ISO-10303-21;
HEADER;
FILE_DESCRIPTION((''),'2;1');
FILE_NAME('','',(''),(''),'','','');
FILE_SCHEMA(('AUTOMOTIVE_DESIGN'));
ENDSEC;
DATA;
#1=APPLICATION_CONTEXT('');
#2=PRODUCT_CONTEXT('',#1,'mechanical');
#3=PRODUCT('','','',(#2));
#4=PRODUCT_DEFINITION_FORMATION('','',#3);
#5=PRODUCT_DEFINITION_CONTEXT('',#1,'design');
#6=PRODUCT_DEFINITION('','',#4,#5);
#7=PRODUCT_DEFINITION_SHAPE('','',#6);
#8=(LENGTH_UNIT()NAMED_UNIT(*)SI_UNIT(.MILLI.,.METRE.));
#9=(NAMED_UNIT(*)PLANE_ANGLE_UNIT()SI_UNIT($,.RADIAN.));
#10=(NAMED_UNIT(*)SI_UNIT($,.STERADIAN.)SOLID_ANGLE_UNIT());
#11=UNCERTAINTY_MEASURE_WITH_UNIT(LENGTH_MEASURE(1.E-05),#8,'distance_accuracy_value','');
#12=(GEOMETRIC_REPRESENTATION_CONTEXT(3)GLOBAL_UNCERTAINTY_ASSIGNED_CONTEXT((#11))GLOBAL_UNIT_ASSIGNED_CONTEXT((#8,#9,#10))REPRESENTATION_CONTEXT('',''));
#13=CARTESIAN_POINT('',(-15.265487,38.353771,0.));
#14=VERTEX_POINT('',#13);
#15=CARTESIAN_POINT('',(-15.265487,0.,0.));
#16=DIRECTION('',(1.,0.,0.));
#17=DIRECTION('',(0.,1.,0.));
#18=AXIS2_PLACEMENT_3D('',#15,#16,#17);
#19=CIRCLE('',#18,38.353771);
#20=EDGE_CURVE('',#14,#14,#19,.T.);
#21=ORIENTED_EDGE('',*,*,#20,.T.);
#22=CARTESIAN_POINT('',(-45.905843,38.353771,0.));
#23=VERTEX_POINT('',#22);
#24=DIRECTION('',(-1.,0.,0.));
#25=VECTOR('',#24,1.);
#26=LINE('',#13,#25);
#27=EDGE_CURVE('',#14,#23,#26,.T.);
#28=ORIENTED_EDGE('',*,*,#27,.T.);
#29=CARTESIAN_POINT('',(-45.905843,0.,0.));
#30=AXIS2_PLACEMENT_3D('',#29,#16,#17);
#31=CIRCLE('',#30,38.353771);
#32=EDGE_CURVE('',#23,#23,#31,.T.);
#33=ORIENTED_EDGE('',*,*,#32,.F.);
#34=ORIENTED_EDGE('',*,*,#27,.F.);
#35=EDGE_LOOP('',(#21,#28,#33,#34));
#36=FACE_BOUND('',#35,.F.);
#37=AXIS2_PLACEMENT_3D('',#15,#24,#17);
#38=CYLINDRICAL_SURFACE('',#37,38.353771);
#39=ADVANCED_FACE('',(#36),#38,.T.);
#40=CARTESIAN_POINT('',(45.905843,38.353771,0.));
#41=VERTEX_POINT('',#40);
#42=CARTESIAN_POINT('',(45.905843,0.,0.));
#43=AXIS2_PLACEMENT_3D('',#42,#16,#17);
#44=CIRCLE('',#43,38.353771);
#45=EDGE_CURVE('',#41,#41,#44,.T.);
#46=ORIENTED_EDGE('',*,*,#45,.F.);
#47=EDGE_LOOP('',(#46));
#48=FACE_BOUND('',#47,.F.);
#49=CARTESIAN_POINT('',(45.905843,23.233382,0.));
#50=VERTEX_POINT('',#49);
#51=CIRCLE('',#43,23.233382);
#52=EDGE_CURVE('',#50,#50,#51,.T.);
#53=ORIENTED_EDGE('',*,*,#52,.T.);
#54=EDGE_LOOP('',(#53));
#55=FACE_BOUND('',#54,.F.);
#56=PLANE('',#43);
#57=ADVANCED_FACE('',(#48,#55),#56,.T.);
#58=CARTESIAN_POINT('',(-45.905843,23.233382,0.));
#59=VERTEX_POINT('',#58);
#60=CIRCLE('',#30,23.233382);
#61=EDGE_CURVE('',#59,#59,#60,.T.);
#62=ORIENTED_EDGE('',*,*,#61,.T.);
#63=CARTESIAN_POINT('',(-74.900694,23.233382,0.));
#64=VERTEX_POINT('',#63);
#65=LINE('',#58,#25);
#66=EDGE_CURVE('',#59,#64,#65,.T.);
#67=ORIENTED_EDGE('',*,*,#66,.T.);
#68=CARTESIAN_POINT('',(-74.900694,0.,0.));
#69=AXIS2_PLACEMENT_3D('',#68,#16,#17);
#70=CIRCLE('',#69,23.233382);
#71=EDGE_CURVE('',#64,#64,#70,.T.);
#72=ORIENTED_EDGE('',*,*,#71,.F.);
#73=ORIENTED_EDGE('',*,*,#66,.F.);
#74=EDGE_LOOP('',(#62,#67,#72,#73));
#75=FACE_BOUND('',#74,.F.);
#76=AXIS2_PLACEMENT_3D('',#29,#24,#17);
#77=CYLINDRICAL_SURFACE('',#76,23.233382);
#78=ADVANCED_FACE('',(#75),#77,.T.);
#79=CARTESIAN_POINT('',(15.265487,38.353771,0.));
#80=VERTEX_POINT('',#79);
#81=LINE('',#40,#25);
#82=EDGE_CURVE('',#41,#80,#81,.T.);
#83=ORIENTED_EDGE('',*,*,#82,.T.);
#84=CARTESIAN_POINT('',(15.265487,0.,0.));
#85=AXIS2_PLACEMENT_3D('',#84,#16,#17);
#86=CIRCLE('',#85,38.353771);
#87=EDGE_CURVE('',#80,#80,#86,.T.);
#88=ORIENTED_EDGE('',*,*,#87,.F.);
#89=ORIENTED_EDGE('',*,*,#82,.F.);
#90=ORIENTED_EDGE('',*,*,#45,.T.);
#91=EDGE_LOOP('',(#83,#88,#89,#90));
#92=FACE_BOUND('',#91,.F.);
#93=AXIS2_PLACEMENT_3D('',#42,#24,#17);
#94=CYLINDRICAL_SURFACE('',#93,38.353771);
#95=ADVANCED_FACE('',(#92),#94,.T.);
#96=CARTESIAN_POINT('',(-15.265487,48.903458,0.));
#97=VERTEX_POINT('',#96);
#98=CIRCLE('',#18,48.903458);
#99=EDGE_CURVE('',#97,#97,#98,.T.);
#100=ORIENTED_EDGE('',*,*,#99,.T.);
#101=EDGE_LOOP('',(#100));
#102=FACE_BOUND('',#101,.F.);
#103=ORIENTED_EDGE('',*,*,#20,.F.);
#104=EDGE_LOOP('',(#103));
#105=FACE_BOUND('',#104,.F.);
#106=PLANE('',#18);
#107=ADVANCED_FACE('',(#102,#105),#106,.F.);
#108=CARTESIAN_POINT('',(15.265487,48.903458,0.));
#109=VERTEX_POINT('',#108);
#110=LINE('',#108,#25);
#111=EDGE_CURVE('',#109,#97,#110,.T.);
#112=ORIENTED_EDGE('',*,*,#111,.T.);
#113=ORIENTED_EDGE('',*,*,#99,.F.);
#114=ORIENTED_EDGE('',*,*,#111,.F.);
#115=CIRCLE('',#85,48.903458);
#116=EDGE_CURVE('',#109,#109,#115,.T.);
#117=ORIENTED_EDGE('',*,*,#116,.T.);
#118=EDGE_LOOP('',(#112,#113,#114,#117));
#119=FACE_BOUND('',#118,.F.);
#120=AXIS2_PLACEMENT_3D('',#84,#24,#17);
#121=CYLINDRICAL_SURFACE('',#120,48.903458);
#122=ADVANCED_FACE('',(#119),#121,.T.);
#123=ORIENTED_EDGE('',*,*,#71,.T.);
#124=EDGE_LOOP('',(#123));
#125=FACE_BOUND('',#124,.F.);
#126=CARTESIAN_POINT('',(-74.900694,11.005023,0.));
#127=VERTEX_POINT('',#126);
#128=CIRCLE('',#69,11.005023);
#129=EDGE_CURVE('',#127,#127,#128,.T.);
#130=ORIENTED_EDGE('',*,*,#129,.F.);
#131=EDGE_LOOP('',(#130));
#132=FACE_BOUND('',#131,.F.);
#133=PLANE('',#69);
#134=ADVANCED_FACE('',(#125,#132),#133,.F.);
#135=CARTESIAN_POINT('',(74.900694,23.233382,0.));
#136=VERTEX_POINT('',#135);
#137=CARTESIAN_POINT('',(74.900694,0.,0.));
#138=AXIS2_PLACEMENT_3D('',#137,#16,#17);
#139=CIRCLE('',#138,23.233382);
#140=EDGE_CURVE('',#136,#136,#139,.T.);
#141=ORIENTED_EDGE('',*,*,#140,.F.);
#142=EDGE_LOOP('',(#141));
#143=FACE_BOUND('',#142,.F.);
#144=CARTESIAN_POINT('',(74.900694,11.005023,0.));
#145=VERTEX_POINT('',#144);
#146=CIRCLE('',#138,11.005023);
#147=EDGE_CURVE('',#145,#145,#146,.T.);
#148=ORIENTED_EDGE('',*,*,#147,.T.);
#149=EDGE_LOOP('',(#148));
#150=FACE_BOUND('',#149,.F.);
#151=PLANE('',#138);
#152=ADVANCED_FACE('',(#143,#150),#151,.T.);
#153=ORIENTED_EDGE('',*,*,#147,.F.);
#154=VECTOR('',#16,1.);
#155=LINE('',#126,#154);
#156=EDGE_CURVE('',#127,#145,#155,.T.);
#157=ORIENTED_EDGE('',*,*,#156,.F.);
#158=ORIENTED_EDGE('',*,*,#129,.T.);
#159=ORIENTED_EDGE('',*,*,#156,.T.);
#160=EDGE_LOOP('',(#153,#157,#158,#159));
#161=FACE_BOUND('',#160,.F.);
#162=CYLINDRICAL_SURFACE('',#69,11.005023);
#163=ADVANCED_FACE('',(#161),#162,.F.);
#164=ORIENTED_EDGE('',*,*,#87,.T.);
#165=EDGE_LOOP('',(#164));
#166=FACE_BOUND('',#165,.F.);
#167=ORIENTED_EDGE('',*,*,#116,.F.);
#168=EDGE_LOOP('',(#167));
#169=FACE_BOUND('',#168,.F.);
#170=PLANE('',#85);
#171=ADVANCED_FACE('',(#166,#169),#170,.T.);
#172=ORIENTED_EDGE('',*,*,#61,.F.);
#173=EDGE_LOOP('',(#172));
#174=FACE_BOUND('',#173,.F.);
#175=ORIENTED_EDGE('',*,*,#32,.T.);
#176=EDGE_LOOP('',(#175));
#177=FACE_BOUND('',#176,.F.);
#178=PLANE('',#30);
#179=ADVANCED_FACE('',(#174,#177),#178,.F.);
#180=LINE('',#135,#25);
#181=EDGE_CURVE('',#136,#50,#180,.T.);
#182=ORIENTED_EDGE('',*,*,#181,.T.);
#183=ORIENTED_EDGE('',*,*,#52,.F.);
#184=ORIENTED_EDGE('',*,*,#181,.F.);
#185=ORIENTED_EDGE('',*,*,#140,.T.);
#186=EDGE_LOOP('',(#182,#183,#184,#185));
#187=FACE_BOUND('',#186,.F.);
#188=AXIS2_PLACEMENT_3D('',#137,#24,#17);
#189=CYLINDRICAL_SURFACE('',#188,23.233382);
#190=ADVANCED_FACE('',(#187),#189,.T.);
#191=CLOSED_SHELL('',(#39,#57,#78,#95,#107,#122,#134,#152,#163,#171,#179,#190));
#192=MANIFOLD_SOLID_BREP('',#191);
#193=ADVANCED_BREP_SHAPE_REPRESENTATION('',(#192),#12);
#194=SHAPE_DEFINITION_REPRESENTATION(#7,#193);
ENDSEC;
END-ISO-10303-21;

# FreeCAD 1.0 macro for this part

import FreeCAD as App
import Part
import Sketcher
from FreeCAD import Vector
Q = App.Units.Quantity


def add_polygon(sketch, points):
    """Adds a closed chain of lines whose ends are joined by coincident constraints."""
    first, n = sketch.GeometryCount, len(points)
    for a, b in zip(points, points[1:] + points[:1]):
        sketch.addGeometry(Part.LineSegment(App.Vector(*a, 0), App.Vector(*b, 0)), False)
    for i in range(n):
        sketch.addConstraint(Sketcher.Constraint("Coincident", first + i, 2, first + (i + 1) % n, 1))

doc = App.newDocument("Part")
body = doc.addObject("PartDesign::Body", "Body")

# Sketch on XY plane
sketch1 = doc.addObject("Sketcher::SketchObject", "Sketch")
body.addObject(sketch1)
sketch1.AttachmentSupport = (doc.XY_Plane, [""])
sketch1.MapMode = "FlatFace"
add_polygon(sketch1, [(75, 23), (46, 23), (46, 38), (15, 38), (15, 49), (-15, 49), (-15, 38), (-46, 38), (-46, 23), (-75, 23), (-75, 11), (75, 11)])  # lines 0-11
sketch1.addConstraint([
    Sketcher.Constraint("Horizontal", 0),
    Sketcher.Constraint("Vertical", 1),
    Sketcher.Constraint("Horizontal", 2),
    Sketcher.Constraint("Vertical", 3),
    Sketcher.Constraint("Horizontal", 4),
    Sketcher.Constraint("Vertical", 5),
    Sketcher.Constraint("Horizontal", 6),
    Sketcher.Constraint("Vertical", 7),
    Sketcher.Constraint("Horizontal", 8),
    Sketcher.Constraint("Vertical", 9),
    Sketcher.Constraint("Horizontal", 10),
    Sketcher.Constraint("Vertical", 11),
    Sketcher.Constraint("Symmetric", 2, 2, 5, 2, -2),
    Sketcher.Constraint("Symmetric", 0, 2, 7, 2, -2),
    Sketcher.Constraint("Equal", 0, 8),
    Sketcher.Constraint("DistanceX", 0, 2, 0, 1, Q("28.994851 mm")),
    Sketcher.Constraint("DistanceX", 10, 1, 10, 2, Q("149.801388 mm")),
    Sketcher.Constraint("DistanceY", 1, 1, 1, 2, Q("15.120389 mm")),
    Sketcher.Constraint("DistanceY", 9, 2, 9, 1, Q("12.228359 mm")),
    Sketcher.Constraint("DistanceX", 2, 2, 2, 1, Q("30.640356 mm")),
    Sketcher.Constraint("DistanceY", 3, 1, 3, 2, Q("10.549687 mm")),
    Sketcher.Constraint("DistanceY", -1, 1, 0, 2, Q("23.233382 mm")),
])
revolution = doc.addObject("PartDesign::Revolution", "Revolution")
body.addObject(revolution)
revolution.Profile = sketch1
revolution.ReferenceAxis = (sketch1, ["H_Axis"])
revolution.Angle = 360

doc.recompute()
